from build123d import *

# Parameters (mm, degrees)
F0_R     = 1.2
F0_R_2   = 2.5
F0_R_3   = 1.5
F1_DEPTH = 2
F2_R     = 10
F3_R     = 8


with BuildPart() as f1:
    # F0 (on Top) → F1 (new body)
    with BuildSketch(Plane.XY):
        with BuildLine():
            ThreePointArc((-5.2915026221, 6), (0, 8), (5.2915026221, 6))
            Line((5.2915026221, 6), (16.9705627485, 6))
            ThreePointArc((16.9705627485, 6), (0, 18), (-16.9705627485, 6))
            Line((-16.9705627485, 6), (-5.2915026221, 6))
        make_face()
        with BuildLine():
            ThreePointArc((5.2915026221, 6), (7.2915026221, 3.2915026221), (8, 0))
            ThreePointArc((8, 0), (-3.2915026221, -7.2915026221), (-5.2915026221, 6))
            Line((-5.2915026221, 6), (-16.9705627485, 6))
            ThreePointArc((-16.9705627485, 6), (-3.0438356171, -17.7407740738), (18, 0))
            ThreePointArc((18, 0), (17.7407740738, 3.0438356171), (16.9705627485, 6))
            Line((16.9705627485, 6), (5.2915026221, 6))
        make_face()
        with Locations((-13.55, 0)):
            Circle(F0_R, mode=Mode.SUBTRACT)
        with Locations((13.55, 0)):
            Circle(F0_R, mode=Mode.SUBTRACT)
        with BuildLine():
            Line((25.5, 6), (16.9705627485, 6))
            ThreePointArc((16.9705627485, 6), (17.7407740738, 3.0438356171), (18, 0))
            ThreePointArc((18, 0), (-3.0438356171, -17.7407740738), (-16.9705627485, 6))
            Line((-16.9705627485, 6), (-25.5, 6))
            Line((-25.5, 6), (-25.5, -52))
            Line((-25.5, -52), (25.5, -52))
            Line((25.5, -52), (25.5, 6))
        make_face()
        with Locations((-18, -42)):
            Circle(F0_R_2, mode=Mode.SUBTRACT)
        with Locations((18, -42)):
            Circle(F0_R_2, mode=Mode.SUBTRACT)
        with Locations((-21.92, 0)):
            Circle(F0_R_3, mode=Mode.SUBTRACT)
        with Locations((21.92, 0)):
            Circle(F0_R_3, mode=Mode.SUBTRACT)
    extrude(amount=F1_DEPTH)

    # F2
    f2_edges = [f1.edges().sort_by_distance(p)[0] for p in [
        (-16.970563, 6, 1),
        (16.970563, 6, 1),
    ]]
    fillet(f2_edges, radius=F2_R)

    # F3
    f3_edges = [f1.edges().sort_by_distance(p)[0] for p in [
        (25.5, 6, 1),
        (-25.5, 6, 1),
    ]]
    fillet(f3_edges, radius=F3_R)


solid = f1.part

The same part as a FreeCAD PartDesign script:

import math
import FreeCAD as App
import Part
import Sketcher

V = App.Vector
Q = App.Units.Quantity


def edges_at(feature, points):
    """Names of the edges that pass closest to the given points."""
    edges = feature.Shape.Edges
    near = lambda p: min(range(len(edges)), key=lambda i: edges[i].distToShape(Part.Vertex(*p))[0])
    return sorted({f"Edge{near(p) + 1}" for p in points})

doc = App.newDocument("Part")
body = doc.addObject("PartDesign::Body", "Body")

# Sketch on XY plane
sketch1 = body.newObject("Sketcher::SketchObject", "Sketch")
sketch1.AttachmentSupport = (doc.getObject("XY_Plane"), [""])
sketch1.MapMode = "FlatFace"
sketch1.addGeometry([
    Part.ArcOfCircle(Part.Circle(V(0, 0, 0), V(0, 0, 1), 18), math.radians(19), math.radians(161)),  # 0
    Part.LineSegment(V(-17, 6, 0), V(-25.5, 6, 0)),  # 1
    Part.LineSegment(V(-25.5, 6, 0), V(-25.5, -52, 0)),  # 2
    Part.LineSegment(V(-25.5, -52, 0), V(25.5, -52, 0)),  # 3
    Part.LineSegment(V(25.5, -52, 0), V(25.5, 6, 0)),  # 4
    Part.LineSegment(V(25.5, 6, 0), V(17, 6, 0)),  # 5
    Part.Circle(V(-18, -42, 0), V(0, 0, 1), 2.5),  # 6
    Part.Circle(V(18, -42, 0), V(0, 0, 1), 2.5),  # 7
    Part.Circle(V(-21.9, 0, 0), V(0, 0, 1), 1.5),  # 8
    Part.Circle(V(-13.6, 0, 0), V(0, 0, 1), 1.2),  # 9
    Part.ArcOfCircle(Part.Circle(V(0, 0, 0), V(0, 0, 1), 8), math.radians(49), math.radians(131)),  # 10
    Part.ArcOfCircle(Part.Circle(V(0, 0, 0), V(0, 0, 1), 8), math.radians(0), math.radians(49)),  # 11
    Part.ArcOfCircle(Part.Circle(V(0, 0, 0), V(0, 0, 1), 8), math.radians(131), math.radians(360)),  # 12
    Part.Circle(V(13.6, 0, 0), V(0, 0, 1), 1.2),  # 13
    Part.Circle(V(21.9, 0, 0), V(0, 0, 1), 1.5),  # 14
], False)
sketch1.addConstraint([
    Sketcher.Constraint("Coincident", 0, 2, 1, 1),
    Sketcher.Constraint("Coincident", 1, 2, 2, 1),
    Sketcher.Constraint("Coincident", 2, 2, 3, 1),
    Sketcher.Constraint("Coincident", 3, 2, 4, 1),
    Sketcher.Constraint("Coincident", 4, 2, 5, 1),
    Sketcher.Constraint("Coincident", 5, 2, 0, 1),
    Sketcher.Constraint("Tangent", 10, 1, 11, 2),
    Sketcher.Constraint("Tangent", 11, 1, 12, 2),
    Sketcher.Constraint("Tangent", 12, 1, 10, 2),
    Sketcher.Constraint("Horizontal", 1),
    Sketcher.Constraint("Vertical", 2),
    Sketcher.Constraint("Horizontal", 3),
    Sketcher.Constraint("Vertical", 4),
    Sketcher.Constraint("Horizontal", 5),
    Sketcher.Constraint("Coincident", 0, 3, -1, 1),
    Sketcher.Constraint("Coincident", 10, 3, -1, 1),
    Sketcher.Constraint("Equal", 6, 7),
    Sketcher.Constraint("Equal", 9, 13),
    Sketcher.Constraint("Equal", 8, 14),
    Sketcher.Constraint("Symmetric", 9, 3, 13, 3, -1, 1),
    Sketcher.Constraint("Symmetric", 8, 3, 14, 3, -1, 1),
    Sketcher.Constraint("Symmetric", 6, 3, 7, 3, -2),
    Sketcher.Constraint("Symmetric", 1, 2, 4, 2, -2),
    Sketcher.Constraint("PointOnObject", 8, 3, -1),
    Sketcher.Constraint("PointOnObject", 9, 3, -1),
    Sketcher.Constraint("PointOnObject", 11, 1, -1),
    Sketcher.Constraint("Horizontal", 5, 2, 10, 1),
    Sketcher.Constraint("Horizontal", 10, 1, 12, 1),
    Sketcher.Constraint("Diameter", 6, Q("5 mm")),
    Sketcher.Constraint("Diameter", 8, Q("3 mm")),
    Sketcher.Constraint("Radius", 0, Q("18 mm")),
    Sketcher.Constraint("Radius", 10, Q("8 mm")),
    Sketcher.Constraint("Diameter", 9, Q("2.4 mm")),
    Sketcher.Constraint("DistanceX", 3, 1, 3, 2, Q("51 mm")),
    Sketcher.Constraint("DistanceY", 2, 2, 2, 1, Q("58 mm")),
    Sketcher.Constraint("DistanceX", 6, 3, -1, 1, Q("18 mm")),
    Sketcher.Constraint("DistanceY", 6, 3, -1, 1, Q("42 mm")),
    Sketcher.Constraint("DistanceY", -1, 1, 0, 2, Q("6 mm")),
    Sketcher.Constraint("DistanceX", 9, 3, 13, 3, Q("27.1 mm")),
    Sketcher.Constraint("DistanceX", 8, 3, -1, 1, Q("21.92 mm")),
])
pad1 = body.newObject("PartDesign::Pad", "Pad")
pad1.Profile = sketch1
pad1.Length = 2
doc.recompute()

fillet = body.newObject("PartDesign::Fillet", "Fillet")
fillet.Base = (pad1, edges_at(pad1, [(-16.971, 6, 1), (16.971, 6, 1)]))
fillet.Radius = 10
doc.recompute()

fillet2 = body.newObject("PartDesign::Fillet", "Fillet001")
fillet2.Base = (fillet, edges_at(fillet, [(25.5, 6, 1), (-25.5, 6, 1)]))
fillet2.Radius = 8

doc.recompute()
